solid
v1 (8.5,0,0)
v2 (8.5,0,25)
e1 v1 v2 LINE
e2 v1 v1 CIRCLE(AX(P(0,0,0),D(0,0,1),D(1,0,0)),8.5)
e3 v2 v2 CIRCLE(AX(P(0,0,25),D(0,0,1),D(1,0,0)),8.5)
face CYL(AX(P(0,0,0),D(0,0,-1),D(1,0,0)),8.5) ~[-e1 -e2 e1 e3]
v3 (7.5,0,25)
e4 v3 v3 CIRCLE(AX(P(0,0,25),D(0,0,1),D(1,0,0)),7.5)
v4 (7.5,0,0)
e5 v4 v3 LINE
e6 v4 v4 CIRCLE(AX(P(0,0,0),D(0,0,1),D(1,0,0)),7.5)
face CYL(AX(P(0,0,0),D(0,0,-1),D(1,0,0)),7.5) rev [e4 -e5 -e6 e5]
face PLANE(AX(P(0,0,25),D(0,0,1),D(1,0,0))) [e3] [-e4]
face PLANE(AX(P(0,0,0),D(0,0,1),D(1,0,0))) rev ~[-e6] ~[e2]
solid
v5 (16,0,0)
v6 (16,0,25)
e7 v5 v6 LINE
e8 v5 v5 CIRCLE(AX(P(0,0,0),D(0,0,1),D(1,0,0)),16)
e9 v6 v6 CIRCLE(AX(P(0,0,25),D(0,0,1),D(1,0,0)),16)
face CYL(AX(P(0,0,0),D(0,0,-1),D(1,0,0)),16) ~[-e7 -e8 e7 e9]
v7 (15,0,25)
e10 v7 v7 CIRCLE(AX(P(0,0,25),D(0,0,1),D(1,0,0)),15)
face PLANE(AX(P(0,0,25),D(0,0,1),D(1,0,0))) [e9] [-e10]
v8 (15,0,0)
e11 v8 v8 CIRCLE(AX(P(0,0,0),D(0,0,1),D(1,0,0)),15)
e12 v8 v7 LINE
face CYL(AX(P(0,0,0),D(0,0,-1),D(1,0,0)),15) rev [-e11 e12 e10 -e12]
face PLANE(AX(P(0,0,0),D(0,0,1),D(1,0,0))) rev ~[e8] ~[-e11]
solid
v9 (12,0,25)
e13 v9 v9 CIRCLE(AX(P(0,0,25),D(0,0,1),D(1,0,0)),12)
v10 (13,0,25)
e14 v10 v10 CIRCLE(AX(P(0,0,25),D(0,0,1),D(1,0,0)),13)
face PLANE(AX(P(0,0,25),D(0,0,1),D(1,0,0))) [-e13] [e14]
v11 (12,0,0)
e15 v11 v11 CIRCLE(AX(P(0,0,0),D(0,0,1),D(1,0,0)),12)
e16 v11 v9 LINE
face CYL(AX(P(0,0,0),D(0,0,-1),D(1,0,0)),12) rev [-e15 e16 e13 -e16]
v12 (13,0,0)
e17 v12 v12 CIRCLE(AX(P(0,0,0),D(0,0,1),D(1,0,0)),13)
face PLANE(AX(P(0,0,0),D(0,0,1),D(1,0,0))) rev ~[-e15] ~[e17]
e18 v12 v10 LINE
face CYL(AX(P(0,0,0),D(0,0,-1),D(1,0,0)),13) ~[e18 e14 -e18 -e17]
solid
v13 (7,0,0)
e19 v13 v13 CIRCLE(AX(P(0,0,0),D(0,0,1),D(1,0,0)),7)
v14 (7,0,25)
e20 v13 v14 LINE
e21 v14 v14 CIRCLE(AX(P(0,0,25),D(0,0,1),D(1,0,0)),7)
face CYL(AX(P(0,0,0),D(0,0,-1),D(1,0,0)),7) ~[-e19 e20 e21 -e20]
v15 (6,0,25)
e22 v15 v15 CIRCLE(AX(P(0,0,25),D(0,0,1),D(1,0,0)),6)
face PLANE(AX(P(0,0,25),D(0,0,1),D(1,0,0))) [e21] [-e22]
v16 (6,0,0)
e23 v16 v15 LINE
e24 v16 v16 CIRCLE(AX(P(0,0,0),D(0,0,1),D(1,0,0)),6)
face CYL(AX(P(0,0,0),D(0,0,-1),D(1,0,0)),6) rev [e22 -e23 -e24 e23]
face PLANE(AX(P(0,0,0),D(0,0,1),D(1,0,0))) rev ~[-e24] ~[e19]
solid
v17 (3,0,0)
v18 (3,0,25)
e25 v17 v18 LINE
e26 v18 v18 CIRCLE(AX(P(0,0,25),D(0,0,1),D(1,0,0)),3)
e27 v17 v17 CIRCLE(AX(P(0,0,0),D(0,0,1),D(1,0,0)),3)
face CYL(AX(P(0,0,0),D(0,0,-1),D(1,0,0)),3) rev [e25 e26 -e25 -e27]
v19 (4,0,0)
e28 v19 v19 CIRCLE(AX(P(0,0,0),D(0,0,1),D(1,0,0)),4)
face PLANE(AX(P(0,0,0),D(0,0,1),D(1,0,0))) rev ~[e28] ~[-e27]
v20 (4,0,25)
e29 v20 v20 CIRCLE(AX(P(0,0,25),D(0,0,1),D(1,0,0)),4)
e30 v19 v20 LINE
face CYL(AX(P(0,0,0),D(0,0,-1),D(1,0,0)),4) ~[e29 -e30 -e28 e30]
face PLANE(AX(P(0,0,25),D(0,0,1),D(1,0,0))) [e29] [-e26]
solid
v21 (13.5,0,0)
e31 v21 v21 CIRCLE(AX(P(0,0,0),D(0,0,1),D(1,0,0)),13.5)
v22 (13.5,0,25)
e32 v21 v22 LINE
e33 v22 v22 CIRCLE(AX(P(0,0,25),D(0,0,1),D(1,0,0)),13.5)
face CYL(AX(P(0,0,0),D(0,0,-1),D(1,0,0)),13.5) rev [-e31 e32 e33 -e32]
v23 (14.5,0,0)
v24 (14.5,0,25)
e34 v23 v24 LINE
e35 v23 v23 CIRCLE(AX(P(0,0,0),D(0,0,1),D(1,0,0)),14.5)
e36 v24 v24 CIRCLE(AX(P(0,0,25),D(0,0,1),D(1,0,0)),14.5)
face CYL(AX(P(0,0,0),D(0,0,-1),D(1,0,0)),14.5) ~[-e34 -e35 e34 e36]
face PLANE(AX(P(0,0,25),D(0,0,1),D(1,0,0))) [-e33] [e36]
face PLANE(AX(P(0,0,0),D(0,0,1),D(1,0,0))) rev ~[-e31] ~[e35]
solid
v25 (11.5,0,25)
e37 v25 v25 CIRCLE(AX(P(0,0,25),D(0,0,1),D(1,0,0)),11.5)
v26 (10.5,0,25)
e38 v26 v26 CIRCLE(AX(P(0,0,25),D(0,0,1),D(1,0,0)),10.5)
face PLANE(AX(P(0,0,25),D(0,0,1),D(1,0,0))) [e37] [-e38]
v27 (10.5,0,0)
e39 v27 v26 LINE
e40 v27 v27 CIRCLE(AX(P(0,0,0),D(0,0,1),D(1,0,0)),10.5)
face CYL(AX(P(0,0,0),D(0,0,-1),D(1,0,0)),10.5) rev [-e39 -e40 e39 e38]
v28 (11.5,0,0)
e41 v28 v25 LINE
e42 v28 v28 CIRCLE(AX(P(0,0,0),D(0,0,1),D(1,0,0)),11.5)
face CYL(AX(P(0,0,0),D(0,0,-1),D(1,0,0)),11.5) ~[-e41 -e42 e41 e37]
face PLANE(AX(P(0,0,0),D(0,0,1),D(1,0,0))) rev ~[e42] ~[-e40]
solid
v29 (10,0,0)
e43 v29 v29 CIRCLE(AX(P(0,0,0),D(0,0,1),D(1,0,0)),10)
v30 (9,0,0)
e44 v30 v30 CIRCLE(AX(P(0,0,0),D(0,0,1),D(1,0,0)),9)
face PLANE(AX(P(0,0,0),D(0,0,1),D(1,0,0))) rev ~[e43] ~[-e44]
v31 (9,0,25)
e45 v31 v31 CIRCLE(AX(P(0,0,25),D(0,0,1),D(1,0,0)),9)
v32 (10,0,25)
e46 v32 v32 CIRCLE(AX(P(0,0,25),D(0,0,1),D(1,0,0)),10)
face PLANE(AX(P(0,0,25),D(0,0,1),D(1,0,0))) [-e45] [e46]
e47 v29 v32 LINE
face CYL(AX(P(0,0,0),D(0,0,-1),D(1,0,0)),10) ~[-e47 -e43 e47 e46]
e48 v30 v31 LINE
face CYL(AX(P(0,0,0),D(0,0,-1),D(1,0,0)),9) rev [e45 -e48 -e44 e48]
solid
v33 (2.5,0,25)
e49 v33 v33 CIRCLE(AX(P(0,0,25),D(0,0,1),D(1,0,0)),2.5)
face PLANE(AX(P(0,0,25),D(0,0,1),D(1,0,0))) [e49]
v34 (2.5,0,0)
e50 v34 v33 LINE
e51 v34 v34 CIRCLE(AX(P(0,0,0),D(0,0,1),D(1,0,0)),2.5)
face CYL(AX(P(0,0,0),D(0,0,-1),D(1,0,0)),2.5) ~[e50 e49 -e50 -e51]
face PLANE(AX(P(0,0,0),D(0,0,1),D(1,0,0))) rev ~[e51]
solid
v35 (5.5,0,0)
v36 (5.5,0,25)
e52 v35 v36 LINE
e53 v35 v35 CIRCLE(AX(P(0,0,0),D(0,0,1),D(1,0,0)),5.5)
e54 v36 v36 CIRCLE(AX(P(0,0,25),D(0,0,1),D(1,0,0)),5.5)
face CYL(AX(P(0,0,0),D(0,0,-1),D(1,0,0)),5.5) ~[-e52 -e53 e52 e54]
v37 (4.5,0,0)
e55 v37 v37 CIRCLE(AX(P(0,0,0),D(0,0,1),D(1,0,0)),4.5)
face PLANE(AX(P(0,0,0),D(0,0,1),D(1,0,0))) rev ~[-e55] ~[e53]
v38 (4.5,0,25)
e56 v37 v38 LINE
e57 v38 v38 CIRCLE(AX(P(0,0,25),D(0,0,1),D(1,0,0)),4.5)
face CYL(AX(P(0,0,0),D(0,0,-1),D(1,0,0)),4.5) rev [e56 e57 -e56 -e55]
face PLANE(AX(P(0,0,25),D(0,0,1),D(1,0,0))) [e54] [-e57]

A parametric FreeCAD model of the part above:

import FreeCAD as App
import Part
import Sketcher

V = App.Vector

doc = App.newDocument("Part")
body = doc.addObject("PartDesign::Body", "Body")

# Sketch on XY plane
sketch1 = doc.addObject("Sketcher::SketchObject", "Sketch")
body.addObject(sketch1)
sketch1.AttachmentSupport = (doc.XY_Plane, [""])
sketch1.MapMode = "FlatFace"
sketch1.addGeometry(Part.Circle(V(0, 0, 0), V(0, 0, 1), 2.5), False)
sketch1.addConstraint([
    Sketcher.Constraint("Coincident", 0, 3, -1, 1),
    Sketcher.Constraint("Diameter", 0, 5.0),
])
pad1 = doc.addObject("PartDesign::Pad", "Pad")
body.addObject(pad1)
pad1.Profile = sketch1
pad1.Length = 25
body2 = doc.addObject("PartDesign::Body", "Body001")

# Sketch on XY plane
sketch2 = doc.addObject("Sketcher::SketchObject", "Sketch001")
body2.addObject(sketch2)
sketch2.AttachmentSupport = (doc.getObject("XY_Plane001"), [""])
sketch2.MapMode = "FlatFace"
sketch2.addGeometry([
    Part.Circle(V(0, 0, 0), V(0, 0, 1), 4),
    Part.Circle(V(0, 0, 0), V(0, 0, 1), 3),
], False)
sketch2.addConstraint([
    Sketcher.Constraint("Coincident", 0, 3, -1, 1),
    Sketcher.Constraint("Coincident", 1, 3, -1, 1),
    Sketcher.Constraint("Diameter", 0, 8.0),
    Sketcher.Constraint("Diameter", 1, 6.0),
])
pad2 = doc.addObject("PartDesign::Pad", "Pad001")
body2.addObject(pad2)
pad2.Profile = sketch2
pad2.Length = 25
body3 = doc.addObject("PartDesign::Body", "Body002")

# Sketch on XY plane
sketch3 = doc.addObject("Sketcher::SketchObject", "Sketch002")
body3.addObject(sketch3)
sketch3.AttachmentSupport = (doc.getObject("XY_Plane002"), [""])
sketch3.MapMode = "FlatFace"
sketch3.addGeometry([
    Part.Circle(V(0, 0, 0), V(0, 0, 1), 5.5),
    Part.Circle(V(0, 0, 0), V(0, 0, 1), 4.5),
], False)
sketch3.addConstraint([
    Sketcher.Constraint("Coincident", 0, 3, -1, 1),
    Sketcher.Constraint("Coincident", 1, 3, -1, 1),
    Sketcher.Constraint("Diameter", 0, 11.0),
    Sketcher.Constraint("Diameter", 1, 9.0),
])
pad3 = doc.addObject("PartDesign::Pad", "Pad002")
body3.addObject(pad3)
pad3.Profile = sketch3
pad3.Length = 25
body4 = doc.addObject("PartDesign::Body", "Body003")

# Sketch on XY plane
sketch4 = doc.addObject("Sketcher::SketchObject", "Sketch003")
body4.addObject(sketch4)
sketch4.AttachmentSupport = (doc.getObject("XY_Plane003"), [""])
sketch4.MapMode = "FlatFace"
sketch4.addGeometry([
    Part.Circle(V(0, 0, 0), V(0, 0, 1), 7),
    Part.Circle(V(0, 0, 0), V(0, 0, 1), 6),
], False)
sketch4.addConstraint([
    Sketcher.Constraint("Coincident", 0, 3, -1, 1),
    Sketcher.Constraint("Coincident", 1, 3, -1, 1),
    Sketcher.Constraint("Diameter", 0, 14.0),
    Sketcher.Constraint("Diameter", 1, 12.0),
])
pad4 = doc.addObject("PartDesign::Pad", "Pad003")
body4.addObject(pad4)
pad4.Profile = sketch4
pad4.Length = 25
body5 = doc.addObject("PartDesign::Body", "Body004")

# Sketch on XY plane
sketch5 = doc.addObject("Sketcher::SketchObject", "Sketch004")
body5.addObject(sketch5)
sketch5.AttachmentSupport = (doc.getObject("XY_Plane004"), [""])
sketch5.MapMode = "FlatFace"
sketch5.addGeometry([
    Part.Circle(V(0, 0, 0), V(0, 0, 1), 8.5),
    Part.Circle(V(0, 0, 0), V(0, 0, 1), 7.5),
], False)
sketch5.addConstraint([
    Sketcher.Constraint("Coincident", 0, 3, -1, 1),
    Sketcher.Constraint("Coincident", 1, 3, -1, 1),
    Sketcher.Constraint("Diameter", 0, 17.0),
    Sketcher.Constraint("Diameter", 1, 15.0),
])
pad5 = doc.addObject("PartDesign::Pad", "Pad004")
body5.addObject(pad5)
pad5.Profile = sketch5
pad5.Length = 25
body6 = doc.addObject("PartDesign::Body", "Body005")

# Sketch on XY plane
sketch6 = doc.addObject("Sketcher::SketchObject", "Sketch005")
body6.addObject(sketch6)
sketch6.AttachmentSupport = (doc.getObject("XY_Plane005"), [""])
sketch6.MapMode = "FlatFace"
sketch6.addGeometry([
    Part.Circle(V(0, 0, 0), V(0, 0, 1), 10),
    Part.Circle(V(0, 0, 0), V(0, 0, 1), 9),
], False)
sketch6.addConstraint([
    Sketcher.Constraint("Coincident", 0, 3, -1, 1),
    Sketcher.Constraint("Coincident", 1, 3, -1, 1),
    Sketcher.Constraint("Diameter", 0, 20.0),
    Sketcher.Constraint("Diameter", 1, 18.0),
])
pad6 = doc.addObject("PartDesign::Pad", "Pad005")
body6.addObject(pad6)
pad6.Profile = sketch6
pad6.Length = 25
body7 = doc.addObject("PartDesign::Body", "Body006")

# Sketch on XY plane
sketch7 = doc.addObject("Sketcher::SketchObject", "Sketch006")
body7.addObject(sketch7)
sketch7.AttachmentSupport = (doc.getObject("XY_Plane006"), [""])
sketch7.MapMode = "FlatFace"
sketch7.addGeometry([
    Part.Circle(V(0, 0, 0), V(0, 0, 1), 11.5),
    Part.Circle(V(0, 0, 0), V(0, 0, 1), 10.5),
], False)
sketch7.addConstraint([
    Sketcher.Constraint("Coincident", 0, 3, -1, 1),
    Sketcher.Constraint("Coincident", 1, 3, -1, 1),
    Sketcher.Constraint("Diameter", 0, 23.0),
    Sketcher.Constraint("Diameter", 1, 21.0),
])
pad7 = doc.addObject("PartDesign::Pad", "Pad006")
body7.addObject(pad7)
pad7.Profile = sketch7
pad7.Length = 25
body8 = doc.addObject("PartDesign::Body", "Body007")

# Sketch on XY plane
sketch8 = doc.addObject("Sketcher::SketchObject", "Sketch007")
body8.addObject(sketch8)
sketch8.AttachmentSupport = (doc.getObject("XY_Plane007"), [""])
sketch8.MapMode = "FlatFace"
sketch8.addGeometry([
    Part.Circle(V(0, 0, 0), V(0, 0, 1), 13),
    Part.Circle(V(0, 0, 0), V(0, 0, 1), 12),
], False)
sketch8.addConstraint([
    Sketcher.Constraint("Coincident", 0, 3, -1, 1),
    Sketcher.Constraint("Coincident", 1, 3, -1, 1),
    Sketcher.Constraint("Diameter", 0, 26.0),
    Sketcher.Constraint("Diameter", 1, 24.0),
])
pad8 = doc.addObject("PartDesign::Pad", "Pad007")
body8.addObject(pad8)
pad8.Profile = sketch8
pad8.Length = 25
body9 = doc.addObject("PartDesign::Body", "Body008")

# Sketch on XY plane
sketch9 = doc.addObject("Sketcher::SketchObject", "Sketch008")
body9.addObject(sketch9)
sketch9.AttachmentSupport = (doc.getObject("XY_Plane008"), [""])
sketch9.MapMode = "FlatFace"
sketch9.addGeometry([
    Part.Circle(V(0, 0, 0), V(0, 0, 1), 14.5),
    Part.Circle(V(0, 0, 0), V(0, 0, 1), 13.5),
], False)
sketch9.addConstraint([
    Sketcher.Constraint("Coincident", 0, 3, -1, 1),
    Sketcher.Constraint("Coincident", 1, 3, -1, 1),
    Sketcher.Constraint("Diameter", 0, 29.0),
    Sketcher.Constraint("Diameter", 1, 27.0),
])
pad9 = doc.addObject("PartDesign::Pad", "Pad008")
body9.addObject(pad9)
pad9.Profile = sketch9
pad9.Length = 25
body10 = doc.addObject("PartDesign::Body", "Body009")

# Sketch on XY plane
sketch10 = doc.addObject("Sketcher::SketchObject", "Sketch009")
body10.addObject(sketch10)
sketch10.AttachmentSupport = (doc.getObject("XY_Plane009"), [""])
sketch10.MapMode = "FlatFace"
sketch10.addGeometry([
    Part.Circle(V(0, 0, 0), V(0, 0, 1), 16),
    Part.Circle(V(0, 0, 0), V(0, 0, 1), 15),
], False)
sketch10.addConstraint([
    Sketcher.Constraint("Coincident", 0, 3, -1, 1),
    Sketcher.Constraint("Coincident", 1, 3, -1, 1),
    Sketcher.Constraint("Diameter", 0, 32.0),
    Sketcher.Constraint("Diameter", 1, 30.0),
])
pad10 = doc.addObject("PartDesign::Pad", "Pad009")
body10.addObject(pad10)
pad10.Profile = sketch10
pad10.Length = 25

doc.recompute()
